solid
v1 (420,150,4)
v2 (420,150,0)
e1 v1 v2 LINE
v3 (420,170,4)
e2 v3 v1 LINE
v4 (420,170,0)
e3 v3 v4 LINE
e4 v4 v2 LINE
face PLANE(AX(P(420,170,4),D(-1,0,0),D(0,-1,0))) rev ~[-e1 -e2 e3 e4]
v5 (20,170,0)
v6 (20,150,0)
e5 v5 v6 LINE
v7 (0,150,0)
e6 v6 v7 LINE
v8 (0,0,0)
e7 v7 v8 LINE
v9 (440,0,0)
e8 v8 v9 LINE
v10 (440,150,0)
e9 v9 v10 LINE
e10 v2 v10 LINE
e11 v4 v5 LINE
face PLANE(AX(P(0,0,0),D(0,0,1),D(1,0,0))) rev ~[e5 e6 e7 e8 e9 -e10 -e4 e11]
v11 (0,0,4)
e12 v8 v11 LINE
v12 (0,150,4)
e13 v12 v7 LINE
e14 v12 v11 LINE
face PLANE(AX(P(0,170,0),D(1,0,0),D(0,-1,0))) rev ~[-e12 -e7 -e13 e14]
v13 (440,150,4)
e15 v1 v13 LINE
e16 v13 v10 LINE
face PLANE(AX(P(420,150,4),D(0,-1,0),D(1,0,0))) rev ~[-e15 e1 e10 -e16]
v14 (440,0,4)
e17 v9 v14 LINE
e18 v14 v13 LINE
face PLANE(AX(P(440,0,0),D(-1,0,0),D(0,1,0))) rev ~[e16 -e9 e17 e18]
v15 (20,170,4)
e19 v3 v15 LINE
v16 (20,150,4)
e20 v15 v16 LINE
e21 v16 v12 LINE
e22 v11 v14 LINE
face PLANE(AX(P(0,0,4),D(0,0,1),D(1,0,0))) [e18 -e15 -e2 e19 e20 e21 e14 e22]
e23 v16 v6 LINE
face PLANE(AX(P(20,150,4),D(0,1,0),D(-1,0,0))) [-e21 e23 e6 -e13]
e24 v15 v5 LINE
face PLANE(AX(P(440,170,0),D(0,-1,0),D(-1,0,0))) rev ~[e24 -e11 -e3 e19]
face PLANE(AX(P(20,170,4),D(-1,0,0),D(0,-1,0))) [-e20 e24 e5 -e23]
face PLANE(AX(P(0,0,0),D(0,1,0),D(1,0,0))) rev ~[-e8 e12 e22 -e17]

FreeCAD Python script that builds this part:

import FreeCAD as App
import Part
import Sketcher
from FreeCAD import Vector


def add_polygon(sketch, points):
    """Adds a closed chain of lines whose ends are joined by coincident constraints."""
    first, n = sketch.GeometryCount, len(points)
    for a, b in zip(points, points[1:] + points[:1]):
        sketch.addGeometry(Part.LineSegment(App.Vector(*a, 0), App.Vector(*b, 0)), False)
    for i in range(n):
        sketch.addConstraint(Sketcher.Constraint("Coincident", first + i, 2, first + (i + 1) % n, 1))

doc = App.newDocument("Part")
params = doc.addObject("Spreadsheet::Sheet", "Params")
for row, (alias, value) in enumerate([
    ("sketch1_width", "440 mm"),
    ("sketch1_height", "170 mm"),
    ("pad1_length", "4 mm"),
    ("sketch2_width", "20 mm"),
    ("pocket1_length", "4 mm"),
], start=1):
    params.set(f"A{row}", alias)
    params.set(f"B{row}", "=" + value)
    params.setAlias(f"B{row}", alias)

body = doc.addObject("PartDesign::Body", "Body")

# Sketch on XY plane
sketch1 = body.newObject("Sketcher::SketchObject", "Sketch")
sketch1.AttachmentSupport = (doc.getObject("XY_Plane"), [""])
sketch1.MapMode = "FlatFace"
add_polygon(sketch1, [(0, 170), (0, 0), (440, 0), (440, 170)])  # lines 0-3
sketch1.addConstraint(Sketcher.Constraint("Vertical", 0))
sketch1.addConstraint(Sketcher.Constraint("Horizontal", 1))
sketch1.addConstraint(Sketcher.Constraint("Vertical", 2))
sketch1.addConstraint(Sketcher.Constraint("Horizontal", 3))
sketch1.addConstraint(Sketcher.Constraint("Coincident", 0, 2, -1, 1))
sketch1.addConstraint(Sketcher.Constraint("DistanceX", 1, 1, 1, 2, 440.0))
sketch1.addConstraint(Sketcher.Constraint("DistanceY", 0, 2, 0, 1, 170.0))
sketch1.setExpression("Constraints[9]", "Params.sketch1_width")
sketch1.setExpression("Constraints[10]", "Params.sketch1_height")
pad1 = body.newObject("PartDesign::Pad", "Pad")
pad1.Profile = sketch1
pad1.setExpression("Length", "Params.pad1_length")

# Sketch on XY plane
sketch2 = body.newObject("Sketcher::SketchObject", "Sketch001")
sketch2.AttachmentSupport = (doc.getObject("XY_Plane"), [""])
sketch2.MapMode = "FlatFace"
sketch2.AttachmentOffset = App.Placement(Vector(0, 0, 4), App.Rotation())
add_polygon(sketch2, [(440, 150), (440, 170), (420, 170), (420, 150)])  # lines 0-3
add_polygon(sketch2, [(20, 150), (20, 170), (0, 170), (0, 150)])  # lines 4-7
sketch2.addConstraint(Sketcher.Constraint("Vertical", 0))
sketch2.addConstraint(Sketcher.Constraint("Horizontal", 1))
sketch2.addConstraint(Sketcher.Constraint("Vertical", 2))
sketch2.addConstraint(Sketcher.Constraint("Horizontal", 3))
sketch2.addConstraint(Sketcher.Constraint("Vertical", 4))
sketch2.addConstraint(Sketcher.Constraint("Horizontal", 5))
sketch2.addConstraint(Sketcher.Constraint("Vertical", 6))
sketch2.addConstraint(Sketcher.Constraint("Horizontal", 7))
sketch2.addConstraint(Sketcher.Constraint("PointOnObject", 5, 2, -2))
sketch2.addConstraint(Sketcher.Constraint("Horizontal", 1, 2, 4, 2))
sketch2.addConstraint(Sketcher.Constraint("Horizontal", 3, 2, 6, 2))
sketch2.addConstraint(Sketcher.Constraint("Equal", 3, 5))
sketch2.addConstraint(Sketcher.Constraint("Equal", 7, 0))
sketch2.addConstraint(Sketcher.Constraint("DistanceX", 1, 2, 1, 1, 20.0))
sketch2.addConstraint(Sketcher.Constraint("DistanceX", -1, 1, 0, 2, 440.0))
sketch2.addConstraint(Sketcher.Constraint("DistanceY", -1, 1, 0, 2, 170.0))
sketch2.setExpression("Constraints[21]", "Params.sketch2_width")
pocket1 = body.newObject("PartDesign::Pocket", "Pocket")
pocket1.Profile = sketch2
pocket1.setExpression("Length", "Params.pocket1_length")

doc.recompute()
